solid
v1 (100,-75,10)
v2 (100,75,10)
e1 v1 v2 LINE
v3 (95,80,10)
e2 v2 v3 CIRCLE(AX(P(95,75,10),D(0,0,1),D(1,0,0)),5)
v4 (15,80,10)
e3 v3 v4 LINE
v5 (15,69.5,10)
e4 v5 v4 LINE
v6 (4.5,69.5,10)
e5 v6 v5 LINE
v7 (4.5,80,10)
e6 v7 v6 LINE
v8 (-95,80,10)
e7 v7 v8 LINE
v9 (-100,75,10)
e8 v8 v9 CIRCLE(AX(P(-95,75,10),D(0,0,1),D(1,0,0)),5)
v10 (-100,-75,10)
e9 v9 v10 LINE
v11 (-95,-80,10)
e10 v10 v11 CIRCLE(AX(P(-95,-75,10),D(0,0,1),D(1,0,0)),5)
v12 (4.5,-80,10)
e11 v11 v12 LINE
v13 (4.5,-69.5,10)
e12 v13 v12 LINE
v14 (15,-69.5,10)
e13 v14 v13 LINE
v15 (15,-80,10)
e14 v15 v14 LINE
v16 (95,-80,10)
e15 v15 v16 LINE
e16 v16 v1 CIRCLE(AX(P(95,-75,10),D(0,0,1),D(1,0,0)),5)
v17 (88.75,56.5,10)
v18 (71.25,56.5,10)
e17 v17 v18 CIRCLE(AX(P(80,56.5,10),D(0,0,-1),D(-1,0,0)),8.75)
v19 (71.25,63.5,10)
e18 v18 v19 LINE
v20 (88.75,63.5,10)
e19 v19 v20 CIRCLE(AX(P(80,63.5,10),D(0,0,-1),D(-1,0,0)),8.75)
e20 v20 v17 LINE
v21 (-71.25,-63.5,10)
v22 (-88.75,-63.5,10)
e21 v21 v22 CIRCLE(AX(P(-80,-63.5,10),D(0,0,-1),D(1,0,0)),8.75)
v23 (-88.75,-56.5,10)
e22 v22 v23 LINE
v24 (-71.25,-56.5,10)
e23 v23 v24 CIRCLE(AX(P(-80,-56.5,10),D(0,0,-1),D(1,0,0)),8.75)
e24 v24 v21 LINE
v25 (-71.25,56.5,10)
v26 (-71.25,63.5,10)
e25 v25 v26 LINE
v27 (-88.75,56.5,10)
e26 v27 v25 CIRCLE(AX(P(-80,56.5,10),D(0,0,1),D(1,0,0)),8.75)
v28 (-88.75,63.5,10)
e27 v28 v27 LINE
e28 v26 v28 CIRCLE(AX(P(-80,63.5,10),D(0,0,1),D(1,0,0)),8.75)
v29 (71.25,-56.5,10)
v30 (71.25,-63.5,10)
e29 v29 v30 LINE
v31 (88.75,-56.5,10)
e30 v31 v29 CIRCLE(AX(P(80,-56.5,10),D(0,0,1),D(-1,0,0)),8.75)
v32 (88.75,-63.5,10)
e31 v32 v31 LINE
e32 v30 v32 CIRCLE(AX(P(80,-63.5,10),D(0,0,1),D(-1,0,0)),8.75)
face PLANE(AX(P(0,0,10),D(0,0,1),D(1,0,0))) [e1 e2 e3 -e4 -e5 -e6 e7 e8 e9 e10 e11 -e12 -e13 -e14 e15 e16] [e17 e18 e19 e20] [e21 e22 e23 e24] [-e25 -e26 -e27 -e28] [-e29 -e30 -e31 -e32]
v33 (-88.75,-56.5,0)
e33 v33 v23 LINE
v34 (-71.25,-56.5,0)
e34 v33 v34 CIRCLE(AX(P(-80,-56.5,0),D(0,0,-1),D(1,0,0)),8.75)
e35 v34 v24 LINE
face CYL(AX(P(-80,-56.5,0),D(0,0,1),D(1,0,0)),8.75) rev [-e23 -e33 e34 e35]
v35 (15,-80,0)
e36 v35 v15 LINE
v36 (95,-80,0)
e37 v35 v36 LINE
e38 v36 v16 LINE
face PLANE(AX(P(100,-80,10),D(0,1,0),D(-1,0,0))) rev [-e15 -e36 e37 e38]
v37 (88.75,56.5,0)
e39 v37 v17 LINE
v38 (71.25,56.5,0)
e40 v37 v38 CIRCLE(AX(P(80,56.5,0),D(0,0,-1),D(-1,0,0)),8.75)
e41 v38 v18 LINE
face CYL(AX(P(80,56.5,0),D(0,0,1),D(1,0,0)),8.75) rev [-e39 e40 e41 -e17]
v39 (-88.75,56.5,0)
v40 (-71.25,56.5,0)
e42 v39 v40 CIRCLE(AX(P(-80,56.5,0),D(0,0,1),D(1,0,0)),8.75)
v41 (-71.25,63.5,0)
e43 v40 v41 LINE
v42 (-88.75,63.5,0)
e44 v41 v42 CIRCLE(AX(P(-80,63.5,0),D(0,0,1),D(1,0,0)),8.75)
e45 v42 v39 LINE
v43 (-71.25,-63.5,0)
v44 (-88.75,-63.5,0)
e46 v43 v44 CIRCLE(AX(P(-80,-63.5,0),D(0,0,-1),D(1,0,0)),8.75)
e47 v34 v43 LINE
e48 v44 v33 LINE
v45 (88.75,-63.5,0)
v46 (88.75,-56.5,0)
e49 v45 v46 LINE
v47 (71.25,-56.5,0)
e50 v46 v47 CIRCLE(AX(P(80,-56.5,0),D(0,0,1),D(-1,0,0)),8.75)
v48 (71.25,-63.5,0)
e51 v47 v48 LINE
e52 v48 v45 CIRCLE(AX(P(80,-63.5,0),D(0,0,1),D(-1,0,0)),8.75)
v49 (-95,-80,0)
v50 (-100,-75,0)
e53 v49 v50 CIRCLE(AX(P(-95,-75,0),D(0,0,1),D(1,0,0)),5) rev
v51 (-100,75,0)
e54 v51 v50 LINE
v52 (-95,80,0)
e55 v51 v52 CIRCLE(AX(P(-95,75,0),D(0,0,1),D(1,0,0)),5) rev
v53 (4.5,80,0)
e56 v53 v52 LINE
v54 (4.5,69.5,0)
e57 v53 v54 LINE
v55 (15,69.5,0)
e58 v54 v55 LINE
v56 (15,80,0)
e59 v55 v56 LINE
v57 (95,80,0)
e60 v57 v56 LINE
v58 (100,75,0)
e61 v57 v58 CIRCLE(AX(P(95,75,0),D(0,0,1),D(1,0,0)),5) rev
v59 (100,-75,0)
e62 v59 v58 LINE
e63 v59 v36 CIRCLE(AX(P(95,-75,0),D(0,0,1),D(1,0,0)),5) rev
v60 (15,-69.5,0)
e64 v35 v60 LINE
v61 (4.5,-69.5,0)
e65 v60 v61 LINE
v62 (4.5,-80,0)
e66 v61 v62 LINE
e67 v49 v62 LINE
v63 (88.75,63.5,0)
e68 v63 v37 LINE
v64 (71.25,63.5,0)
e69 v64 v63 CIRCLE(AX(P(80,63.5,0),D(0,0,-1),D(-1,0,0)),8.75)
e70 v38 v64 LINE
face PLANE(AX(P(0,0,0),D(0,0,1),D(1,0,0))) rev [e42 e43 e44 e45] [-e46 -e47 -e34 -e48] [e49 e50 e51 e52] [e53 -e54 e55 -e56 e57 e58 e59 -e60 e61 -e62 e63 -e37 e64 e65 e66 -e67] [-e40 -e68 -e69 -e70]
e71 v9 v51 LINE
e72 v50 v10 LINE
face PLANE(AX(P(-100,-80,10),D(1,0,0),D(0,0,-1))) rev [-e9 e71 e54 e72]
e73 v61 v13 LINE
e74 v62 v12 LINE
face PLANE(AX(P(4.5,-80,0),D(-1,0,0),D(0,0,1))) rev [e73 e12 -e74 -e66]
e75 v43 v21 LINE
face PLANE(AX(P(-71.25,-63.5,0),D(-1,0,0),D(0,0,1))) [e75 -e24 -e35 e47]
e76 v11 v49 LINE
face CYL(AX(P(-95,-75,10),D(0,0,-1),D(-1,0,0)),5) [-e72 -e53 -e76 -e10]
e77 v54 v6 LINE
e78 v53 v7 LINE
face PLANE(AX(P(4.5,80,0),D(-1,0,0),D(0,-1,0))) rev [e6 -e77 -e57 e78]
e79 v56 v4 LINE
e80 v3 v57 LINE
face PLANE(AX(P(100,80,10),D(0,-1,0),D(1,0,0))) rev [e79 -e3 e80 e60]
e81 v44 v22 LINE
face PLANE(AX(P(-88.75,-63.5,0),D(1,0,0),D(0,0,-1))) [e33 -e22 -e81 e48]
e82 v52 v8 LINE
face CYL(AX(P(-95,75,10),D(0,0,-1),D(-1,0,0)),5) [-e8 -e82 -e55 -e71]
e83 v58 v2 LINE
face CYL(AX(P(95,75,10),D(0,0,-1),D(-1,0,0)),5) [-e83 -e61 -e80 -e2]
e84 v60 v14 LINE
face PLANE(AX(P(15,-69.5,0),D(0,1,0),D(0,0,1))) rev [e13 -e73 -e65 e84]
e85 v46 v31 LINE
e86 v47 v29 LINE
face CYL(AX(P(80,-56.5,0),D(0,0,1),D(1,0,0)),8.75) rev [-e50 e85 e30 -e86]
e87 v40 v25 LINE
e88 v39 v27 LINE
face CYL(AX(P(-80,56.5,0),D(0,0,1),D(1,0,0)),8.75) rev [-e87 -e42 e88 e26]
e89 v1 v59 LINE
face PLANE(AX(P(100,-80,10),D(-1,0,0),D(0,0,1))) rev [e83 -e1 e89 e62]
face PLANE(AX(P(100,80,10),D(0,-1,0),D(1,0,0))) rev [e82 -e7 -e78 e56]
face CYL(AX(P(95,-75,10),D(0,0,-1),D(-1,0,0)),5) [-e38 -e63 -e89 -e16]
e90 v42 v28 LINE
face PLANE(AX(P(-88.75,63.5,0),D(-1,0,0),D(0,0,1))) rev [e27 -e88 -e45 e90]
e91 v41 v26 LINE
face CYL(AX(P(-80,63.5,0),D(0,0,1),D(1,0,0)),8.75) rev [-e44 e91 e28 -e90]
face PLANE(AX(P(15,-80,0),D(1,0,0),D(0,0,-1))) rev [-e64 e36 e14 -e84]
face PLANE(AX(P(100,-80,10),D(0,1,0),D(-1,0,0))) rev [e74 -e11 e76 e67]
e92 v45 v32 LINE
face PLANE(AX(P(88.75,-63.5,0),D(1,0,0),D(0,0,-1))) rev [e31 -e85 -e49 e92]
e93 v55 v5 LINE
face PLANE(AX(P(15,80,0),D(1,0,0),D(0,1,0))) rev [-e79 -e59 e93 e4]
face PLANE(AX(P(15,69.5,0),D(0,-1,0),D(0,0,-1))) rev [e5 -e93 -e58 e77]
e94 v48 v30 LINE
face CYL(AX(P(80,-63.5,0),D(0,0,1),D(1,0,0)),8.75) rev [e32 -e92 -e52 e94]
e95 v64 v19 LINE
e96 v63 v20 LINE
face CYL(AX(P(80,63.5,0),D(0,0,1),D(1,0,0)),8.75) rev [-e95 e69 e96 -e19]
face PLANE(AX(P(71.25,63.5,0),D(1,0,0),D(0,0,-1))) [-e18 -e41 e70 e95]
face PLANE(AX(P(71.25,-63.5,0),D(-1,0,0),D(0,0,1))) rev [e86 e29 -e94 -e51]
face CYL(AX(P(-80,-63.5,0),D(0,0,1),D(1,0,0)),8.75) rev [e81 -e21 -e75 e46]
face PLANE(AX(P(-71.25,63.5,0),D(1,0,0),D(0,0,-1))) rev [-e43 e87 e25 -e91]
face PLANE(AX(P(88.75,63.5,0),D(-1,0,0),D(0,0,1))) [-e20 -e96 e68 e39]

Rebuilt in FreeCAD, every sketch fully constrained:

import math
import FreeCAD as App
import Part
import Sketcher
from FreeCAD import Vector


def edges_at(feature, points):
    """Names of the edges that pass closest to the given points."""
    edges = feature.Shape.Edges
    near = lambda p: min(range(len(edges)), key=lambda i: edges[i].distToShape(Part.Vertex(*p))[0])
    return sorted({f"Edge{near(p) + 1}" for p in points})


def add_polygon(sketch, points):
    """Adds a closed chain of lines whose ends are joined by coincident constraints."""
    first, n = sketch.GeometryCount, len(points)
    for a, b in zip(points, points[1:] + points[:1]):
        sketch.addGeometry(Part.LineSegment(App.Vector(*a, 0), App.Vector(*b, 0)), False)
    for i in range(n):
        sketch.addConstraint(Sketcher.Constraint("Coincident", first + i, 2, first + (i + 1) % n, 1))

doc = App.newDocument("Part")
body = doc.addObject("PartDesign::Body", "Body")

sketch1 = body.newObject("Sketcher::SketchObject", "Sketch")
sketch1.AttachmentSupport = (doc.getObject("XY_Plane"), [""])
sketch1.MapMode = "FlatFace"
add_polygon(sketch1, [(-100, 80), (-100, -80), (100, -80), (100, 80)])
sketch1.addGeometry(Part.Circle(Vector(-80, -60, 0), Vector(0, 0, 1), 9), False)
sketch1.addGeometry(Part.Circle(Vector(80, -60, 0), Vector(0, 0, 1), 9), False)
sketch1.addGeometry(Part.Circle(Vector(-80, 60, 0), Vector(0, 0, 1), 9), False)
sketch1.addGeometry(Part.Circle(Vector(80, 60, 0), Vector(0, 0, 1), 9), False)
sketch1.addConstraint([
    Sketcher.Constraint("Vertical", 0),
    Sketcher.Constraint("Horizontal", 1),
    Sketcher.Constraint("Vertical", 2),
    Sketcher.Constraint("Horizontal", 3),
    Sketcher.Constraint("Equal", 4, 5),
    Sketcher.Constraint("Equal", 5, 6),
    Sketcher.Constraint("Equal", 6, 7),
    Sketcher.Constraint("Symmetric", 5, 3, 6, 3, -1, 1),
    Sketcher.Constraint("Symmetric", 4, 3, 7, 3, -1, 1),
    Sketcher.Constraint("Symmetric", 0, 2, 2, 2, -1, 1),
    Sketcher.Constraint("Symmetric", 4, 3, 5, 3, -2),
    Sketcher.Constraint("Diameter", 4, 17.5),
    Sketcher.Constraint("DistanceX", 1, 1, 1, 2, 200.0),
    Sketcher.Constraint("DistanceY", 0, 2, 0, 1, 160.0),
    Sketcher.Constraint("DistanceX", 4, 3, -1, 1, 80.0),
    Sketcher.Constraint("DistanceY", 4, 3, -1, 1, 60.0),
])
pad1 = body.newObject("PartDesign::Pad", "Pad")
pad1.Profile = sketch1
pad1.Length = 10

sketch2 = body.newObject("Sketcher::SketchObject", "Sketch001")
sketch2.AttachmentSupport = (doc.getObject("XY_Plane"), [""])
sketch2.MapMode = "FlatFace"
sketch2.AttachmentOffset = App.Placement(Vector(0, 0, 10), App.Rotation())
add_polygon(sketch2, [(4, 80), (4, 70), (15, 70), (15, 80)])
add_polygon(sketch2, [(4, -70), (4, -80), (15, -80), (15, -70)])
sketch2.addConstraint([
    Sketcher.Constraint("Vertical", 0),
    Sketcher.Constraint("Horizontal", 1),
    Sketcher.Constraint("Vertical", 2),
    Sketcher.Constraint("Horizontal", 3),
    Sketcher.Constraint("Vertical", 4),
    Sketcher.Constraint("Horizontal", 5),
    Sketcher.Constraint("Vertical", 6),
    Sketcher.Constraint("Horizontal", 7),
    Sketcher.Constraint("Symmetric", 3, 2, 4, 2, -1),
    Sketcher.Constraint("Symmetric", 1, 2, 6, 2, -1),
    Sketcher.Constraint("Equal", 7, 0),
    Sketcher.Constraint("DistanceX", 1, 1, 1, 2, 10.5),
    Sketcher.Constraint("DistanceX", -1, 1, 1, 2, 15.0),
    Sketcher.Constraint("DistanceY", -1, 1, 2, 2, 80.0),
])
pocket1 = body.newObject("PartDesign::Pocket", "Pocket")
pocket1.Profile = sketch2
pocket1.Length = 10
doc.recompute()

fillet = body.newObject("PartDesign::Fillet", "Fillet")
fillet.Base = (pocket1, edges_at(pocket1, [
    (-100, 80, 5),
    (100, 80, 5),
    (100, -80, 5),
    (-100, -80, 5),
]))
fillet.Radius = 5

sketch3 = body.newObject("Sketcher::SketchObject", "Sketch002")
sketch3.AttachmentSupport = (doc.getObject("XY_Plane"), [""])
sketch3.MapMode = "FlatFace"
sketch3.AttachmentOffset = App.Placement(Vector(0, 0, 10), App.Rotation())
sketch3.addGeometry([
    Part.LineSegment(Vector(-71, 56, 0), Vector(-71, 64, 0)),
    Part.ArcOfCircle(Part.Circle(Vector(-80, 64, 0), Vector(0, 0, 1), 9), math.radians(0), math.radians(180)),
    Part.LineSegment(Vector(-89, 64, 0), Vector(-89, 56, 0)),
    Part.ArcOfCircle(Part.Circle(Vector(-80, 56, 0), Vector(0, 0, 1), 9), math.radians(180), math.radians(360)),
], False)
sketch3.addConstraint([
    Sketcher.Constraint("Tangent", 0, 2, 1, 1),
    Sketcher.Constraint("Tangent", 1, 2, 2, 1),
    Sketcher.Constraint("Tangent", 2, 2, 3, 1),
    Sketcher.Constraint("Tangent", 3, 2, 0, 1),
    Sketcher.Constraint("Vertical", 0),
    Sketcher.Constraint("Vertical", 2),
    Sketcher.Constraint("DistanceY", 0, 1, 0, 2, 7.0),
    Sketcher.Constraint("Radius", 1, 8.75),
    Sketcher.Constraint("DistanceX", 1, 3, -1, 1, 80.0),
    Sketcher.Constraint("DistanceY", -1, 1, 1, 3, 63.5),
])
pocket2 = body.newObject("PartDesign::Pocket", "Pocket001")
pocket2.Profile = sketch3
pocket2.Type = "ThroughAll"
doc.recompute()

mirrored = body.newObject("PartDesign::Mirrored", "Mirrored")
mirrored.Originals = [pocket2]
mirrored.MirrorPlane = (doc.getObject("XZ_Plane"), [""])
body.Tip = mirrored
doc.recompute()

mirrored2 = body.newObject("PartDesign::Mirrored", "Mirrored001")
mirrored2.Originals = [pocket2]
mirrored2.MirrorPlane = (doc.getObject("YZ_Plane"), [""])
body.Tip = mirrored2

sketch4 = body.newObject("Sketcher::SketchObject", "Sketch003")
sketch4.AttachmentSupport = (doc.getObject("XY_Plane"), [""])
sketch4.MapMode = "FlatFace"
sketch4.AttachmentOffset = App.Placement(Vector(0, 0, 10), App.Rotation())
sketch4.addGeometry([
    Part.LineSegment(Vector(71, -56, 0), Vector(71, -64, 0)),
    Part.ArcOfCircle(Part.Circle(Vector(80, -64, 0), Vector(0, 0, 1), 9), math.radians(180), math.radians(360)),
    Part.LineSegment(Vector(89, -64, 0), Vector(89, -56, 0)),
    Part.ArcOfCircle(Part.Circle(Vector(80, -56, 0), Vector(0, 0, 1), 9), math.radians(0), math.radians(180)),
], False)
sketch4.addConstraint([
    Sketcher.Constraint("Tangent", 0, 2, 1, 1),
    Sketcher.Constraint("Tangent", 1, 2, 2, 1),
    Sketcher.Constraint("Tangent", 2, 2, 3, 1),
    Sketcher.Constraint("Tangent", 3, 2, 0, 1),
    Sketcher.Constraint("Vertical", 0),
    Sketcher.Constraint("Vertical", 2),
    Sketcher.Constraint("DistanceY", 0, 2, 0, 1, 7.0),
    Sketcher.Constraint("Radius", 1, 8.75),
    Sketcher.Constraint("DistanceX", -1, 1, 1, 3, 80.0),
    Sketcher.Constraint("DistanceY", 1, 3, -1, 1, 63.5),
])
pocket3 = body.newObject("PartDesign::Pocket", "Pocket002")
pocket3.Profile = sketch4
pocket3.Type = "ThroughAll"

doc.recompute()
